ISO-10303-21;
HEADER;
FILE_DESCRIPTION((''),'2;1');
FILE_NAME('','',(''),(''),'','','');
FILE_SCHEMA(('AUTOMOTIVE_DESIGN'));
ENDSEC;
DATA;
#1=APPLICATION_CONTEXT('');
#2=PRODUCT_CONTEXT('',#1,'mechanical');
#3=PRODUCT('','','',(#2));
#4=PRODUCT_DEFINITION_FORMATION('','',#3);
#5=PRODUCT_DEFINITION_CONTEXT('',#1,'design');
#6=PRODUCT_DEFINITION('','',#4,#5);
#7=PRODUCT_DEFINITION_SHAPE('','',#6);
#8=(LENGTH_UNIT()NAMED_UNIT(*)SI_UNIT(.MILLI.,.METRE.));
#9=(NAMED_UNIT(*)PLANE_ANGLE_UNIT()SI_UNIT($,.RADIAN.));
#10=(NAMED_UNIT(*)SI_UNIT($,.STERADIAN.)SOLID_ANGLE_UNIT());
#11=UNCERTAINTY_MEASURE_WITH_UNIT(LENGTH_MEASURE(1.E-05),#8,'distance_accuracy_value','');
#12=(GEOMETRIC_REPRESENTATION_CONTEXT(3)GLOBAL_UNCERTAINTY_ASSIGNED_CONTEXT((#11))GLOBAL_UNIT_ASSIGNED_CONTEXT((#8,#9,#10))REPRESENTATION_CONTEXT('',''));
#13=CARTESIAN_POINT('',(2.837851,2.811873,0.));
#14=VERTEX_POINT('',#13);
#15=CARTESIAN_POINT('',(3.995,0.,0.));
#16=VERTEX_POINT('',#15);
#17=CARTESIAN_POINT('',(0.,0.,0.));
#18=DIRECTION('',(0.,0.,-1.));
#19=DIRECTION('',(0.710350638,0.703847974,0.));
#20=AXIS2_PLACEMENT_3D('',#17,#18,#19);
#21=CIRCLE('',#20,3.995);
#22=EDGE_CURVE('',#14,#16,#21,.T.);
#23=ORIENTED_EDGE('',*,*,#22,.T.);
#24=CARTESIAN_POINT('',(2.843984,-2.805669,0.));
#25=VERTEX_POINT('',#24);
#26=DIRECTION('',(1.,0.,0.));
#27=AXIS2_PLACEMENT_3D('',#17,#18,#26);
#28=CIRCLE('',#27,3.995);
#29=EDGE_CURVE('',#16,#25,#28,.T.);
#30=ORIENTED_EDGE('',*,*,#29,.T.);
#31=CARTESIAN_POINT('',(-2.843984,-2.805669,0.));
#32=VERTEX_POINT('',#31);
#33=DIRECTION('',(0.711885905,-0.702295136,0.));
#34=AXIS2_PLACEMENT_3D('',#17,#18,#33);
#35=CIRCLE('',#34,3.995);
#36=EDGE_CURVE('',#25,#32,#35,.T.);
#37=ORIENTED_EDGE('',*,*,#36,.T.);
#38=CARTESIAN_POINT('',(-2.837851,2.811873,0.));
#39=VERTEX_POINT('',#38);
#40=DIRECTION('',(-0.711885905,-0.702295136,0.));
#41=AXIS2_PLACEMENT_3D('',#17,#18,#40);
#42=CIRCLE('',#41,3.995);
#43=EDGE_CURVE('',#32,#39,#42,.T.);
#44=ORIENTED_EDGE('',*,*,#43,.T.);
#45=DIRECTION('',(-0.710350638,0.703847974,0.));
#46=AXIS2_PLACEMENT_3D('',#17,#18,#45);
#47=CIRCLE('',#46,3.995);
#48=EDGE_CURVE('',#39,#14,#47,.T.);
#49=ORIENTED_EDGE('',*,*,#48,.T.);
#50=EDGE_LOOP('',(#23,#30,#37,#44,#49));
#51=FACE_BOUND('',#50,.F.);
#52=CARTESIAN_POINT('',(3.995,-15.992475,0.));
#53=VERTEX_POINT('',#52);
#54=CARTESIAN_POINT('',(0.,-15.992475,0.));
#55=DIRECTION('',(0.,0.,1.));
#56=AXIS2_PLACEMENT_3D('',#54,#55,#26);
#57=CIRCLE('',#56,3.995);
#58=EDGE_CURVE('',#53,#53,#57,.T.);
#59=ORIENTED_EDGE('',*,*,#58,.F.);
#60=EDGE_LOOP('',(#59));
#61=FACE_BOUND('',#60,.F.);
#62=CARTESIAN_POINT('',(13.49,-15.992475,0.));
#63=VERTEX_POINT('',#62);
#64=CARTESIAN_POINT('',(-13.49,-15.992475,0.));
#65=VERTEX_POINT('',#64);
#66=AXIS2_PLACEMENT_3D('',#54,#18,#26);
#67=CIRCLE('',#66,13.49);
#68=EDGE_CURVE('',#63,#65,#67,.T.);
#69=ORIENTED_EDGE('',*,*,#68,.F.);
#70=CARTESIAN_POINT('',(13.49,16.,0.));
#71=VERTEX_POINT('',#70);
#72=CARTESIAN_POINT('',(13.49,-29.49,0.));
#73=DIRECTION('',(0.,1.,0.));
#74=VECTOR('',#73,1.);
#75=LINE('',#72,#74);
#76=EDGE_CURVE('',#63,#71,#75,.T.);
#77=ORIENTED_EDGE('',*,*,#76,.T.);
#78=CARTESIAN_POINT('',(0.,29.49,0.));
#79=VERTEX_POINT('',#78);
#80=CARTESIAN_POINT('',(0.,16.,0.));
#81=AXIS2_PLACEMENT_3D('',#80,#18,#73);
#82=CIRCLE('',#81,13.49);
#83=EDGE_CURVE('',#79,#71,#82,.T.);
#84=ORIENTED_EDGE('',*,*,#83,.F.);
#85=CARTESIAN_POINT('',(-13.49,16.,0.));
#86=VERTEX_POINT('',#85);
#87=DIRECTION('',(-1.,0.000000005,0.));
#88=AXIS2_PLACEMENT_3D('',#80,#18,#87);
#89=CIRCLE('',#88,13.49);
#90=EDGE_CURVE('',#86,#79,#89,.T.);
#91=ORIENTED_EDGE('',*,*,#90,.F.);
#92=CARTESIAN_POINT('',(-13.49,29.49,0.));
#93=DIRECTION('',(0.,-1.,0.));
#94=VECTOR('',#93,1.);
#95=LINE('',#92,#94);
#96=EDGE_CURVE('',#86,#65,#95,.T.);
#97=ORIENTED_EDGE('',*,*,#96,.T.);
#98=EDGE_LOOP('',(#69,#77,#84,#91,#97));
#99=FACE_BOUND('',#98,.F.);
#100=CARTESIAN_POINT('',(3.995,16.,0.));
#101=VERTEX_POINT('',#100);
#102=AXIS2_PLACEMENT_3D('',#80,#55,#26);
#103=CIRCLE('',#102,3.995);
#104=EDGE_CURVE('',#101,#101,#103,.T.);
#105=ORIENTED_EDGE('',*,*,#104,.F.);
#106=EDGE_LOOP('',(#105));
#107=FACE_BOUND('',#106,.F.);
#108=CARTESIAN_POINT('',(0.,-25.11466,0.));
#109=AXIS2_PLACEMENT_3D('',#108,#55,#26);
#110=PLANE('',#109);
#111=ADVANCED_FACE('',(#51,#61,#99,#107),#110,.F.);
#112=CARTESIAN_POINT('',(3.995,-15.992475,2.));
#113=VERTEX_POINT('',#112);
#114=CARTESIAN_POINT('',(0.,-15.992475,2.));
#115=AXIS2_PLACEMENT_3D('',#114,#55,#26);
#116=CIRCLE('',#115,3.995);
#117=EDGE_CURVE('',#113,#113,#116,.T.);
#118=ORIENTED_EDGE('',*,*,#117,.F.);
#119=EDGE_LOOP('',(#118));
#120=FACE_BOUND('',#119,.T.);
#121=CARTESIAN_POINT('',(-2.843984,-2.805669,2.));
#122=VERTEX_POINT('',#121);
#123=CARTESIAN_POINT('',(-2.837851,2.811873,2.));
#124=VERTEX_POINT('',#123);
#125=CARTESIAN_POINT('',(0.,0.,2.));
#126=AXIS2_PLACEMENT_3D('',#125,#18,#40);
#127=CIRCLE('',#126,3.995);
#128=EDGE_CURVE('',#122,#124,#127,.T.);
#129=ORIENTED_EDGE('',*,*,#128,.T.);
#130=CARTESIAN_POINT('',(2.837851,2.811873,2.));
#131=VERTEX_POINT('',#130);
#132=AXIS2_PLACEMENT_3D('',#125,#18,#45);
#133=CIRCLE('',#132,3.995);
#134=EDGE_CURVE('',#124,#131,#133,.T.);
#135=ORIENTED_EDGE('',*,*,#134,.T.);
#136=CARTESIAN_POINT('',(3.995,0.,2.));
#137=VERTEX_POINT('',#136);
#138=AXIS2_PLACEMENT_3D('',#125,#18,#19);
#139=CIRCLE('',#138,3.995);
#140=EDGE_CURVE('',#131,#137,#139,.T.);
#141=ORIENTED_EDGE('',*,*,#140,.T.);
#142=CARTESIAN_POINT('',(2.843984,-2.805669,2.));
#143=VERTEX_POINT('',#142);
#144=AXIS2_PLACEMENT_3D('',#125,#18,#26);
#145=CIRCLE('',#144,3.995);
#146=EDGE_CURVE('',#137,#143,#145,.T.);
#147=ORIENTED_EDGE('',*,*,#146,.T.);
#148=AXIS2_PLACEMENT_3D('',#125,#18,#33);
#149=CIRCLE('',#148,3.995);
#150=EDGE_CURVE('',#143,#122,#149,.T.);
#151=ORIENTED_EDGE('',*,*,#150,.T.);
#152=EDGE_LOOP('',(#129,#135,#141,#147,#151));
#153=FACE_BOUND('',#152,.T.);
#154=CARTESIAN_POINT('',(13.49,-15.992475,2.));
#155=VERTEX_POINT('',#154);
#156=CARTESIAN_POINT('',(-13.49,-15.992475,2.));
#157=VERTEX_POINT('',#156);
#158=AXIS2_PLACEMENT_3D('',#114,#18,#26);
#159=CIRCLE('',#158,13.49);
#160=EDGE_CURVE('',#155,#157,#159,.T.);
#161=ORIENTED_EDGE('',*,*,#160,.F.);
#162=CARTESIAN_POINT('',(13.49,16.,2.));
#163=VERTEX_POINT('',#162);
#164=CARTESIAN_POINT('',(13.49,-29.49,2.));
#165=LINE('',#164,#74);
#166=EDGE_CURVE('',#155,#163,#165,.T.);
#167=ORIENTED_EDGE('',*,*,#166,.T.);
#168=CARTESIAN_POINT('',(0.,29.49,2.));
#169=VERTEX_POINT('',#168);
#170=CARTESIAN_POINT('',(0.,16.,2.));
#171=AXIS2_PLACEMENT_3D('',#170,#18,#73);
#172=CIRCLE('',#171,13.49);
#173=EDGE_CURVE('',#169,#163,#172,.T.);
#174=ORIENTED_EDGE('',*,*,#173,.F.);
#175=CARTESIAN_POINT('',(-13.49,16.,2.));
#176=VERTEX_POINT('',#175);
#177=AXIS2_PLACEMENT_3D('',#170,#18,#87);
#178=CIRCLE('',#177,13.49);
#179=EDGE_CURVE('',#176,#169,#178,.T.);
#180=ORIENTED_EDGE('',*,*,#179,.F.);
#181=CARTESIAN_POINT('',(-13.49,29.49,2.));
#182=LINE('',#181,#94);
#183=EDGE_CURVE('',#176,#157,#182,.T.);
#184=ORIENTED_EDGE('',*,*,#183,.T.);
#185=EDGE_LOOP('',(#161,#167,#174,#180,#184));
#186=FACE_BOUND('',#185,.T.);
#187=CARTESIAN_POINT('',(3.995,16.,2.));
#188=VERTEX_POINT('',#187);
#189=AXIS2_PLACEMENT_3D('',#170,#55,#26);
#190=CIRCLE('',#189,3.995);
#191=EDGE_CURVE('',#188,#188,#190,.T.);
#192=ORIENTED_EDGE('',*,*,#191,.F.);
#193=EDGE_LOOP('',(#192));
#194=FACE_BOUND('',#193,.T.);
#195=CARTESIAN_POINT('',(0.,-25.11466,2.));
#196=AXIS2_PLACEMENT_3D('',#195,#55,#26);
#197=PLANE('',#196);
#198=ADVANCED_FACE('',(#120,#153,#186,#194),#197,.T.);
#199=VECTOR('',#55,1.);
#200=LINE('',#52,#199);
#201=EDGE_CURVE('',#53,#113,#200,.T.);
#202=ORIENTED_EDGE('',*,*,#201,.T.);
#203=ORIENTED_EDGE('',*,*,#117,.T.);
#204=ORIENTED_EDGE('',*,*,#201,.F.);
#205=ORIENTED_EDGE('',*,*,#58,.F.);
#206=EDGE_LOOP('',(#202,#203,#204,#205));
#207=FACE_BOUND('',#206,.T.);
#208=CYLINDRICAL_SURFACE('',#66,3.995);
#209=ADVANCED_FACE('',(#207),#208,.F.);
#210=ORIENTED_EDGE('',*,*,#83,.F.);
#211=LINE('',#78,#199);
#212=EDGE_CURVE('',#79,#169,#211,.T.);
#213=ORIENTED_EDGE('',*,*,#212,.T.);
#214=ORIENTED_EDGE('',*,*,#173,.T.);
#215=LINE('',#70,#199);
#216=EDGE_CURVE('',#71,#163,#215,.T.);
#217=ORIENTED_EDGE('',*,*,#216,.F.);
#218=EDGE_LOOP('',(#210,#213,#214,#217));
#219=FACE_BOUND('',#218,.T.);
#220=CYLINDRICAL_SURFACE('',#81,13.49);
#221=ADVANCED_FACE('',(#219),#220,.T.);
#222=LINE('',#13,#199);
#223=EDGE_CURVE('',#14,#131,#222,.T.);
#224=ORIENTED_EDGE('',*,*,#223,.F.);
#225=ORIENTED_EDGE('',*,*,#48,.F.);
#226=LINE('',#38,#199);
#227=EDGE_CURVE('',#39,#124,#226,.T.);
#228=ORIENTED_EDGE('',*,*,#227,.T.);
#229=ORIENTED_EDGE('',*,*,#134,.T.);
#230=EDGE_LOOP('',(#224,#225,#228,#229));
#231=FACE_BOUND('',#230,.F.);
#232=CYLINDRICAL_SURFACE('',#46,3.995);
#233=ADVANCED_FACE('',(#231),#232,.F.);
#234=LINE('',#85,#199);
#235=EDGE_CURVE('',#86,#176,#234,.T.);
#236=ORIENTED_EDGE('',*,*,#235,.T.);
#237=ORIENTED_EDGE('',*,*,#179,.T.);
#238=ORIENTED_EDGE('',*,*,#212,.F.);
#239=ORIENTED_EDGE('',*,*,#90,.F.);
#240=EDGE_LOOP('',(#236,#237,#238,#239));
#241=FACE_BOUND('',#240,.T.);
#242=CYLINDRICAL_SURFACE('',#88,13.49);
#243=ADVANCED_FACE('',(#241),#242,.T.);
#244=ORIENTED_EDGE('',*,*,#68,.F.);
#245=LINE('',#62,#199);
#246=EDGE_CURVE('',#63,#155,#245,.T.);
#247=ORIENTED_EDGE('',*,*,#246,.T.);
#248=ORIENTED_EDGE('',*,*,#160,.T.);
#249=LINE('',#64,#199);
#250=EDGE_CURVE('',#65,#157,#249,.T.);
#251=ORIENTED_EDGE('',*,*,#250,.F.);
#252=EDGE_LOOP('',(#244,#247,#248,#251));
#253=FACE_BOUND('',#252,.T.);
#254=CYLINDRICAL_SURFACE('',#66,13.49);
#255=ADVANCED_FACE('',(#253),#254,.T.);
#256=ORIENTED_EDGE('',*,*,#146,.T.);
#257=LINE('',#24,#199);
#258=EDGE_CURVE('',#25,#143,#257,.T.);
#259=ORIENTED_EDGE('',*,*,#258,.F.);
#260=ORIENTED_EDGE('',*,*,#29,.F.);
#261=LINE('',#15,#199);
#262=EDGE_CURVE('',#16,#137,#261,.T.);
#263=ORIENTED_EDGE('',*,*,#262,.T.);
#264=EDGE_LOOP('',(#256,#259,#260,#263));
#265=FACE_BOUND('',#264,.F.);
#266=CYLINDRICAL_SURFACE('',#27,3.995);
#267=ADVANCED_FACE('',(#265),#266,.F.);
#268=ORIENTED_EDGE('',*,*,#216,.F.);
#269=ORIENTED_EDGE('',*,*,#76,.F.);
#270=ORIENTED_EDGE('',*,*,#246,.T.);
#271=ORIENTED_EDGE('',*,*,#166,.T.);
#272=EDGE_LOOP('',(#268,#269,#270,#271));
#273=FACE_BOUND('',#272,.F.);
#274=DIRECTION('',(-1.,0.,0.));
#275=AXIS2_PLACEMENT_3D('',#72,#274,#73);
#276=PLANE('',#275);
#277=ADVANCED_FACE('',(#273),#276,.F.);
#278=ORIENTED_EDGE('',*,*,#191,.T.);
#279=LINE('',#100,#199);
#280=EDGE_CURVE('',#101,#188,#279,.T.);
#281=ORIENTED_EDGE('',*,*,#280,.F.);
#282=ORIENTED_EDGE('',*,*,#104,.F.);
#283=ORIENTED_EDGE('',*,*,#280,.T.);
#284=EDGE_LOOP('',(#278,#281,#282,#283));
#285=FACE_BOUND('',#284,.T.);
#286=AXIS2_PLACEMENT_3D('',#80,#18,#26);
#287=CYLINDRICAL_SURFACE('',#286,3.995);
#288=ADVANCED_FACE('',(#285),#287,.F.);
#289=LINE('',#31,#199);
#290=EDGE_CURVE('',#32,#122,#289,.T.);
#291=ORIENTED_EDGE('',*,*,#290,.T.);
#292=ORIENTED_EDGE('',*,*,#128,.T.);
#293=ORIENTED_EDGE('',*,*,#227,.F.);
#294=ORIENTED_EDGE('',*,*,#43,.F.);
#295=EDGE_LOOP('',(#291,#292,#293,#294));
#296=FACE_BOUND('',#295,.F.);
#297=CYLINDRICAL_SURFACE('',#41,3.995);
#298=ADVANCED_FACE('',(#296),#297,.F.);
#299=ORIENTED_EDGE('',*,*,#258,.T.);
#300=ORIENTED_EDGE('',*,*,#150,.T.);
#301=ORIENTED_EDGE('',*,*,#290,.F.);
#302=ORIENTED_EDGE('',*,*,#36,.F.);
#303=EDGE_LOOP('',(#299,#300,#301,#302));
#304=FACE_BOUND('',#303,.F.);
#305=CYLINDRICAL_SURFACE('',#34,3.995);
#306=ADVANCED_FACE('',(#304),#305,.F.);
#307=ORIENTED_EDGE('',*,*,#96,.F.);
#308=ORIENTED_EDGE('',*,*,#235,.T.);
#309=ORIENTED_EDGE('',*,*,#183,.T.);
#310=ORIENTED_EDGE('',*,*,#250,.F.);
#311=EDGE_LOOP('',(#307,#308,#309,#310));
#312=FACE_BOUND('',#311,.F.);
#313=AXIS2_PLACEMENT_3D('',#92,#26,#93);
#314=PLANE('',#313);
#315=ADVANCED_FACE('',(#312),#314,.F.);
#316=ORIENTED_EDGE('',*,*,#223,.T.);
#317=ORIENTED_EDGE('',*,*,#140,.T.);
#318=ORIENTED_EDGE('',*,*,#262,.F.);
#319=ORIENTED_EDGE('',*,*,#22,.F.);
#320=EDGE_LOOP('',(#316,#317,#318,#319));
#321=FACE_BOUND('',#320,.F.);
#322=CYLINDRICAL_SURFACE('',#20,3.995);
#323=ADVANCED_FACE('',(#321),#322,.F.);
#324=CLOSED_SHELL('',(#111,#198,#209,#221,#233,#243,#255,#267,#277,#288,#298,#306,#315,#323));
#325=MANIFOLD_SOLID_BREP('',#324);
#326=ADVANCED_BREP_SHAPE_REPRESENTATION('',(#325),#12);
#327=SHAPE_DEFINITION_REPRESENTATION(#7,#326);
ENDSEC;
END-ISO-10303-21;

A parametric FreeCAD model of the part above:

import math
import FreeCAD as App
import Part
import Sketcher
from FreeCAD import Vector
Q = App.Units.Quantity

doc = App.newDocument("Part")
body = doc.addObject("PartDesign::Body", "Body")

sketch1 = body.newObject("Sketcher::SketchObject", "Sketch")
sketch1.AttachmentSupport = (doc.getObject("XY_Plane"), [""])
sketch1.MapMode = "FlatFace"
sketch1.addGeometry([
    Part.LineSegment(Vector(-13.5, -29.5, 0), Vector(13.5, -29.5, 0)),
    Part.LineSegment(Vector(13.5, -29.5, 0), Vector(13.5, 29.5, 0)),
    Part.LineSegment(Vector(13.5, 29.5, 0), Vector(-13.5, 29.5, 0)),
    Part.LineSegment(Vector(-13.5, 29.5, 0), Vector(-13.5, -29.5, 0)),
    Part.Circle(Vector(0, -16, 0), Vector(0, 0, 1), 4),
    Part.ArcOfCircle(Part.Circle(Vector(0, 0, 0), Vector(0, 0, 1), 4), math.radians(0), math.radians(45)),
    Part.ArcOfCircle(Part.Circle(Vector(0, 0, 0), Vector(0, 0, 1), 4), math.radians(-45), math.radians(0)),
    Part.ArcOfCircle(Part.Circle(Vector(0, 0, 0), Vector(0, 0, 1), 4), math.radians(-135), math.radians(-45)),
    Part.ArcOfCircle(Part.Circle(Vector(0, 0, 0), Vector(0, 0, 1), 4), math.radians(135), math.radians(225)),
    Part.ArcOfCircle(Part.Circle(Vector(0, 0, 0), Vector(0, 0, 1), 4), math.radians(45), math.radians(135)),
    Part.Circle(Vector(0, 16, 0), Vector(0, 0, 1), 4),
], False)
sketch1.addConstraint([
    Sketcher.Constraint("Coincident", 0, 2, 1, 1),
    Sketcher.Constraint("Coincident", 1, 2, 2, 1),
    Sketcher.Constraint("Coincident", 2, 2, 3, 1),
    Sketcher.Constraint("Coincident", 3, 2, 0, 1),
    Sketcher.Constraint("Tangent", 5, 1, 6, 2),
    Sketcher.Constraint("Tangent", 6, 1, 7, 2),
    Sketcher.Constraint("Tangent", 7, 1, 8, 2),
    Sketcher.Constraint("Tangent", 8, 1, 9, 2),
    Sketcher.Constraint("Tangent", 9, 1, 5, 2),
    Sketcher.Constraint("Horizontal", 0),
    Sketcher.Constraint("Vertical", 1),
    Sketcher.Constraint("Horizontal", 2),
    Sketcher.Constraint("Vertical", 3),
    Sketcher.Constraint("Coincident", 5, 3, -1, 1),
    Sketcher.Constraint("Coincident", 7, 3, -1, 1),
    Sketcher.Constraint("Equal", 4, 5),
    Sketcher.Constraint("Equal", 9, 10),
    Sketcher.Constraint("Symmetric", 0, 2, 2, 2, -1, 1),
    Sketcher.Constraint("PointOnObject", 4, 3, -2),
    Sketcher.Constraint("PointOnObject", 10, 3, -2),
    Sketcher.Constraint("PointOnObject", 5, 1, -1),
    Sketcher.Constraint("Horizontal", 6, 1, 7, 1),
    Sketcher.Constraint("Horizontal", 8, 1, 9, 1),
    Sketcher.Constraint("Diameter", 4, Q("7.99 mm")),
    Sketcher.Constraint("DistanceY", -1, 1, 10, 3, Q("16 mm")),
    Sketcher.Constraint("DistanceX", 0, 1, 0, 2, Q("26.98 mm")),
    Sketcher.Constraint("DistanceY", 1, 1, 1, 2, Q("58.98 mm")),
    Sketcher.Constraint("DistanceY", 6, 1, -1, 1, Q("2.805669 mm")),
    Sketcher.Constraint("DistanceX", 8, 1, -1, 1, Q("2.837851 mm")),
    Sketcher.Constraint("DistanceY", 4, 3, -1, 1, Q("15.992475 mm")),
])
pad1 = body.newObject("PartDesign::Pad", "Pad")
pad1.Profile = sketch1
pad1.Length = 2

sketch2 = body.newObject("Sketcher::SketchObject", "Sketch001")
sketch2.AttachmentSupport = (doc.getObject("XY_Plane"), [""])
sketch2.MapMode = "FlatFace"
sketch2.addGeometry([
    Part.ArcOfCircle(Part.Circle(Vector(0, 16, 0), Vector(0, 0, 1), 13), math.radians(0), math.radians(90)),
    Part.LineSegment(Vector(13, 16, 0), Vector(13, 29, 0)),
    Part.LineSegment(Vector(13, 29, 0), Vector(0, 29, 0)),
    Part.LineSegment(Vector(-13, -29, 0), Vector(13, -29, 0)),
    Part.LineSegment(Vector(13, -29, 0), Vector(13, -16, 0)),
    Part.ArcOfCircle(Part.Circle(Vector(0, -16, 0), Vector(0, 0, 1), 13), math.radians(180), math.radians(360)),
    Part.LineSegment(Vector(-13, -16, 0), Vector(-13, -29, 0)),
    Part.LineSegment(Vector(-13, 29, 0), Vector(-13, 16, 0)),
    Part.ArcOfCircle(Part.Circle(Vector(0, 16, 0), Vector(0, 0, 1), 13), math.radians(90), math.radians(180)),
    Part.LineSegment(Vector(0, 29, 0), Vector(-13, 29, 0)),
], False)
sketch2.addConstraint([
    Sketcher.Constraint("Tangent", 0, 1, 1, 1),
    Sketcher.Constraint("Coincident", 1, 2, 2, 1),
    Sketcher.Constraint("Tangent", 2, 2, 0, 2),
    Sketcher.Constraint("Coincident", 3, 2, 4, 1),
    Sketcher.Constraint("Tangent", 4, 2, 5, 2),
    Sketcher.Constraint("Tangent", 5, 1, 6, 1),
    Sketcher.Constraint("Coincident", 6, 2, 3, 1),
    Sketcher.Constraint("Tangent", 7, 2, 8, 2),
    Sketcher.Constraint("Tangent", 8, 1, 9, 1),
    Sketcher.Constraint("Coincident", 9, 2, 7, 1),
    Sketcher.Constraint("Vertical", 1),
    Sketcher.Constraint("Horizontal", 2),
    Sketcher.Constraint("Horizontal", 3),
    Sketcher.Constraint("Vertical", 4),
    Sketcher.Constraint("Vertical", 6),
    Sketcher.Constraint("Vertical", 7),
    Sketcher.Constraint("Horizontal", 9),
    Sketcher.Constraint("Coincident", 8, 3, 0, 3),
    Sketcher.Constraint("Equal", 0, 5),
    Sketcher.Constraint("Equal", 5, 8),
    Sketcher.Constraint("Symmetric", 1, 2, 6, 2, -1, 1),
    Sketcher.Constraint("PointOnObject", 0, 3, -2),
    Sketcher.Constraint("Radius", 0, Q("13.49 mm")),
    Sketcher.Constraint("DistanceY", -1, 1, 0, 3, Q("16 mm")),
    Sketcher.Constraint("DistanceY", 4, 1, 4, 2, Q("13.497525 mm")),
])
pocket1 = body.newObject("PartDesign::Pocket", "Pocket")
pocket1.Profile = sketch2
pocket1.Length = 25
pocket1.Reversed = True

doc.recompute()
